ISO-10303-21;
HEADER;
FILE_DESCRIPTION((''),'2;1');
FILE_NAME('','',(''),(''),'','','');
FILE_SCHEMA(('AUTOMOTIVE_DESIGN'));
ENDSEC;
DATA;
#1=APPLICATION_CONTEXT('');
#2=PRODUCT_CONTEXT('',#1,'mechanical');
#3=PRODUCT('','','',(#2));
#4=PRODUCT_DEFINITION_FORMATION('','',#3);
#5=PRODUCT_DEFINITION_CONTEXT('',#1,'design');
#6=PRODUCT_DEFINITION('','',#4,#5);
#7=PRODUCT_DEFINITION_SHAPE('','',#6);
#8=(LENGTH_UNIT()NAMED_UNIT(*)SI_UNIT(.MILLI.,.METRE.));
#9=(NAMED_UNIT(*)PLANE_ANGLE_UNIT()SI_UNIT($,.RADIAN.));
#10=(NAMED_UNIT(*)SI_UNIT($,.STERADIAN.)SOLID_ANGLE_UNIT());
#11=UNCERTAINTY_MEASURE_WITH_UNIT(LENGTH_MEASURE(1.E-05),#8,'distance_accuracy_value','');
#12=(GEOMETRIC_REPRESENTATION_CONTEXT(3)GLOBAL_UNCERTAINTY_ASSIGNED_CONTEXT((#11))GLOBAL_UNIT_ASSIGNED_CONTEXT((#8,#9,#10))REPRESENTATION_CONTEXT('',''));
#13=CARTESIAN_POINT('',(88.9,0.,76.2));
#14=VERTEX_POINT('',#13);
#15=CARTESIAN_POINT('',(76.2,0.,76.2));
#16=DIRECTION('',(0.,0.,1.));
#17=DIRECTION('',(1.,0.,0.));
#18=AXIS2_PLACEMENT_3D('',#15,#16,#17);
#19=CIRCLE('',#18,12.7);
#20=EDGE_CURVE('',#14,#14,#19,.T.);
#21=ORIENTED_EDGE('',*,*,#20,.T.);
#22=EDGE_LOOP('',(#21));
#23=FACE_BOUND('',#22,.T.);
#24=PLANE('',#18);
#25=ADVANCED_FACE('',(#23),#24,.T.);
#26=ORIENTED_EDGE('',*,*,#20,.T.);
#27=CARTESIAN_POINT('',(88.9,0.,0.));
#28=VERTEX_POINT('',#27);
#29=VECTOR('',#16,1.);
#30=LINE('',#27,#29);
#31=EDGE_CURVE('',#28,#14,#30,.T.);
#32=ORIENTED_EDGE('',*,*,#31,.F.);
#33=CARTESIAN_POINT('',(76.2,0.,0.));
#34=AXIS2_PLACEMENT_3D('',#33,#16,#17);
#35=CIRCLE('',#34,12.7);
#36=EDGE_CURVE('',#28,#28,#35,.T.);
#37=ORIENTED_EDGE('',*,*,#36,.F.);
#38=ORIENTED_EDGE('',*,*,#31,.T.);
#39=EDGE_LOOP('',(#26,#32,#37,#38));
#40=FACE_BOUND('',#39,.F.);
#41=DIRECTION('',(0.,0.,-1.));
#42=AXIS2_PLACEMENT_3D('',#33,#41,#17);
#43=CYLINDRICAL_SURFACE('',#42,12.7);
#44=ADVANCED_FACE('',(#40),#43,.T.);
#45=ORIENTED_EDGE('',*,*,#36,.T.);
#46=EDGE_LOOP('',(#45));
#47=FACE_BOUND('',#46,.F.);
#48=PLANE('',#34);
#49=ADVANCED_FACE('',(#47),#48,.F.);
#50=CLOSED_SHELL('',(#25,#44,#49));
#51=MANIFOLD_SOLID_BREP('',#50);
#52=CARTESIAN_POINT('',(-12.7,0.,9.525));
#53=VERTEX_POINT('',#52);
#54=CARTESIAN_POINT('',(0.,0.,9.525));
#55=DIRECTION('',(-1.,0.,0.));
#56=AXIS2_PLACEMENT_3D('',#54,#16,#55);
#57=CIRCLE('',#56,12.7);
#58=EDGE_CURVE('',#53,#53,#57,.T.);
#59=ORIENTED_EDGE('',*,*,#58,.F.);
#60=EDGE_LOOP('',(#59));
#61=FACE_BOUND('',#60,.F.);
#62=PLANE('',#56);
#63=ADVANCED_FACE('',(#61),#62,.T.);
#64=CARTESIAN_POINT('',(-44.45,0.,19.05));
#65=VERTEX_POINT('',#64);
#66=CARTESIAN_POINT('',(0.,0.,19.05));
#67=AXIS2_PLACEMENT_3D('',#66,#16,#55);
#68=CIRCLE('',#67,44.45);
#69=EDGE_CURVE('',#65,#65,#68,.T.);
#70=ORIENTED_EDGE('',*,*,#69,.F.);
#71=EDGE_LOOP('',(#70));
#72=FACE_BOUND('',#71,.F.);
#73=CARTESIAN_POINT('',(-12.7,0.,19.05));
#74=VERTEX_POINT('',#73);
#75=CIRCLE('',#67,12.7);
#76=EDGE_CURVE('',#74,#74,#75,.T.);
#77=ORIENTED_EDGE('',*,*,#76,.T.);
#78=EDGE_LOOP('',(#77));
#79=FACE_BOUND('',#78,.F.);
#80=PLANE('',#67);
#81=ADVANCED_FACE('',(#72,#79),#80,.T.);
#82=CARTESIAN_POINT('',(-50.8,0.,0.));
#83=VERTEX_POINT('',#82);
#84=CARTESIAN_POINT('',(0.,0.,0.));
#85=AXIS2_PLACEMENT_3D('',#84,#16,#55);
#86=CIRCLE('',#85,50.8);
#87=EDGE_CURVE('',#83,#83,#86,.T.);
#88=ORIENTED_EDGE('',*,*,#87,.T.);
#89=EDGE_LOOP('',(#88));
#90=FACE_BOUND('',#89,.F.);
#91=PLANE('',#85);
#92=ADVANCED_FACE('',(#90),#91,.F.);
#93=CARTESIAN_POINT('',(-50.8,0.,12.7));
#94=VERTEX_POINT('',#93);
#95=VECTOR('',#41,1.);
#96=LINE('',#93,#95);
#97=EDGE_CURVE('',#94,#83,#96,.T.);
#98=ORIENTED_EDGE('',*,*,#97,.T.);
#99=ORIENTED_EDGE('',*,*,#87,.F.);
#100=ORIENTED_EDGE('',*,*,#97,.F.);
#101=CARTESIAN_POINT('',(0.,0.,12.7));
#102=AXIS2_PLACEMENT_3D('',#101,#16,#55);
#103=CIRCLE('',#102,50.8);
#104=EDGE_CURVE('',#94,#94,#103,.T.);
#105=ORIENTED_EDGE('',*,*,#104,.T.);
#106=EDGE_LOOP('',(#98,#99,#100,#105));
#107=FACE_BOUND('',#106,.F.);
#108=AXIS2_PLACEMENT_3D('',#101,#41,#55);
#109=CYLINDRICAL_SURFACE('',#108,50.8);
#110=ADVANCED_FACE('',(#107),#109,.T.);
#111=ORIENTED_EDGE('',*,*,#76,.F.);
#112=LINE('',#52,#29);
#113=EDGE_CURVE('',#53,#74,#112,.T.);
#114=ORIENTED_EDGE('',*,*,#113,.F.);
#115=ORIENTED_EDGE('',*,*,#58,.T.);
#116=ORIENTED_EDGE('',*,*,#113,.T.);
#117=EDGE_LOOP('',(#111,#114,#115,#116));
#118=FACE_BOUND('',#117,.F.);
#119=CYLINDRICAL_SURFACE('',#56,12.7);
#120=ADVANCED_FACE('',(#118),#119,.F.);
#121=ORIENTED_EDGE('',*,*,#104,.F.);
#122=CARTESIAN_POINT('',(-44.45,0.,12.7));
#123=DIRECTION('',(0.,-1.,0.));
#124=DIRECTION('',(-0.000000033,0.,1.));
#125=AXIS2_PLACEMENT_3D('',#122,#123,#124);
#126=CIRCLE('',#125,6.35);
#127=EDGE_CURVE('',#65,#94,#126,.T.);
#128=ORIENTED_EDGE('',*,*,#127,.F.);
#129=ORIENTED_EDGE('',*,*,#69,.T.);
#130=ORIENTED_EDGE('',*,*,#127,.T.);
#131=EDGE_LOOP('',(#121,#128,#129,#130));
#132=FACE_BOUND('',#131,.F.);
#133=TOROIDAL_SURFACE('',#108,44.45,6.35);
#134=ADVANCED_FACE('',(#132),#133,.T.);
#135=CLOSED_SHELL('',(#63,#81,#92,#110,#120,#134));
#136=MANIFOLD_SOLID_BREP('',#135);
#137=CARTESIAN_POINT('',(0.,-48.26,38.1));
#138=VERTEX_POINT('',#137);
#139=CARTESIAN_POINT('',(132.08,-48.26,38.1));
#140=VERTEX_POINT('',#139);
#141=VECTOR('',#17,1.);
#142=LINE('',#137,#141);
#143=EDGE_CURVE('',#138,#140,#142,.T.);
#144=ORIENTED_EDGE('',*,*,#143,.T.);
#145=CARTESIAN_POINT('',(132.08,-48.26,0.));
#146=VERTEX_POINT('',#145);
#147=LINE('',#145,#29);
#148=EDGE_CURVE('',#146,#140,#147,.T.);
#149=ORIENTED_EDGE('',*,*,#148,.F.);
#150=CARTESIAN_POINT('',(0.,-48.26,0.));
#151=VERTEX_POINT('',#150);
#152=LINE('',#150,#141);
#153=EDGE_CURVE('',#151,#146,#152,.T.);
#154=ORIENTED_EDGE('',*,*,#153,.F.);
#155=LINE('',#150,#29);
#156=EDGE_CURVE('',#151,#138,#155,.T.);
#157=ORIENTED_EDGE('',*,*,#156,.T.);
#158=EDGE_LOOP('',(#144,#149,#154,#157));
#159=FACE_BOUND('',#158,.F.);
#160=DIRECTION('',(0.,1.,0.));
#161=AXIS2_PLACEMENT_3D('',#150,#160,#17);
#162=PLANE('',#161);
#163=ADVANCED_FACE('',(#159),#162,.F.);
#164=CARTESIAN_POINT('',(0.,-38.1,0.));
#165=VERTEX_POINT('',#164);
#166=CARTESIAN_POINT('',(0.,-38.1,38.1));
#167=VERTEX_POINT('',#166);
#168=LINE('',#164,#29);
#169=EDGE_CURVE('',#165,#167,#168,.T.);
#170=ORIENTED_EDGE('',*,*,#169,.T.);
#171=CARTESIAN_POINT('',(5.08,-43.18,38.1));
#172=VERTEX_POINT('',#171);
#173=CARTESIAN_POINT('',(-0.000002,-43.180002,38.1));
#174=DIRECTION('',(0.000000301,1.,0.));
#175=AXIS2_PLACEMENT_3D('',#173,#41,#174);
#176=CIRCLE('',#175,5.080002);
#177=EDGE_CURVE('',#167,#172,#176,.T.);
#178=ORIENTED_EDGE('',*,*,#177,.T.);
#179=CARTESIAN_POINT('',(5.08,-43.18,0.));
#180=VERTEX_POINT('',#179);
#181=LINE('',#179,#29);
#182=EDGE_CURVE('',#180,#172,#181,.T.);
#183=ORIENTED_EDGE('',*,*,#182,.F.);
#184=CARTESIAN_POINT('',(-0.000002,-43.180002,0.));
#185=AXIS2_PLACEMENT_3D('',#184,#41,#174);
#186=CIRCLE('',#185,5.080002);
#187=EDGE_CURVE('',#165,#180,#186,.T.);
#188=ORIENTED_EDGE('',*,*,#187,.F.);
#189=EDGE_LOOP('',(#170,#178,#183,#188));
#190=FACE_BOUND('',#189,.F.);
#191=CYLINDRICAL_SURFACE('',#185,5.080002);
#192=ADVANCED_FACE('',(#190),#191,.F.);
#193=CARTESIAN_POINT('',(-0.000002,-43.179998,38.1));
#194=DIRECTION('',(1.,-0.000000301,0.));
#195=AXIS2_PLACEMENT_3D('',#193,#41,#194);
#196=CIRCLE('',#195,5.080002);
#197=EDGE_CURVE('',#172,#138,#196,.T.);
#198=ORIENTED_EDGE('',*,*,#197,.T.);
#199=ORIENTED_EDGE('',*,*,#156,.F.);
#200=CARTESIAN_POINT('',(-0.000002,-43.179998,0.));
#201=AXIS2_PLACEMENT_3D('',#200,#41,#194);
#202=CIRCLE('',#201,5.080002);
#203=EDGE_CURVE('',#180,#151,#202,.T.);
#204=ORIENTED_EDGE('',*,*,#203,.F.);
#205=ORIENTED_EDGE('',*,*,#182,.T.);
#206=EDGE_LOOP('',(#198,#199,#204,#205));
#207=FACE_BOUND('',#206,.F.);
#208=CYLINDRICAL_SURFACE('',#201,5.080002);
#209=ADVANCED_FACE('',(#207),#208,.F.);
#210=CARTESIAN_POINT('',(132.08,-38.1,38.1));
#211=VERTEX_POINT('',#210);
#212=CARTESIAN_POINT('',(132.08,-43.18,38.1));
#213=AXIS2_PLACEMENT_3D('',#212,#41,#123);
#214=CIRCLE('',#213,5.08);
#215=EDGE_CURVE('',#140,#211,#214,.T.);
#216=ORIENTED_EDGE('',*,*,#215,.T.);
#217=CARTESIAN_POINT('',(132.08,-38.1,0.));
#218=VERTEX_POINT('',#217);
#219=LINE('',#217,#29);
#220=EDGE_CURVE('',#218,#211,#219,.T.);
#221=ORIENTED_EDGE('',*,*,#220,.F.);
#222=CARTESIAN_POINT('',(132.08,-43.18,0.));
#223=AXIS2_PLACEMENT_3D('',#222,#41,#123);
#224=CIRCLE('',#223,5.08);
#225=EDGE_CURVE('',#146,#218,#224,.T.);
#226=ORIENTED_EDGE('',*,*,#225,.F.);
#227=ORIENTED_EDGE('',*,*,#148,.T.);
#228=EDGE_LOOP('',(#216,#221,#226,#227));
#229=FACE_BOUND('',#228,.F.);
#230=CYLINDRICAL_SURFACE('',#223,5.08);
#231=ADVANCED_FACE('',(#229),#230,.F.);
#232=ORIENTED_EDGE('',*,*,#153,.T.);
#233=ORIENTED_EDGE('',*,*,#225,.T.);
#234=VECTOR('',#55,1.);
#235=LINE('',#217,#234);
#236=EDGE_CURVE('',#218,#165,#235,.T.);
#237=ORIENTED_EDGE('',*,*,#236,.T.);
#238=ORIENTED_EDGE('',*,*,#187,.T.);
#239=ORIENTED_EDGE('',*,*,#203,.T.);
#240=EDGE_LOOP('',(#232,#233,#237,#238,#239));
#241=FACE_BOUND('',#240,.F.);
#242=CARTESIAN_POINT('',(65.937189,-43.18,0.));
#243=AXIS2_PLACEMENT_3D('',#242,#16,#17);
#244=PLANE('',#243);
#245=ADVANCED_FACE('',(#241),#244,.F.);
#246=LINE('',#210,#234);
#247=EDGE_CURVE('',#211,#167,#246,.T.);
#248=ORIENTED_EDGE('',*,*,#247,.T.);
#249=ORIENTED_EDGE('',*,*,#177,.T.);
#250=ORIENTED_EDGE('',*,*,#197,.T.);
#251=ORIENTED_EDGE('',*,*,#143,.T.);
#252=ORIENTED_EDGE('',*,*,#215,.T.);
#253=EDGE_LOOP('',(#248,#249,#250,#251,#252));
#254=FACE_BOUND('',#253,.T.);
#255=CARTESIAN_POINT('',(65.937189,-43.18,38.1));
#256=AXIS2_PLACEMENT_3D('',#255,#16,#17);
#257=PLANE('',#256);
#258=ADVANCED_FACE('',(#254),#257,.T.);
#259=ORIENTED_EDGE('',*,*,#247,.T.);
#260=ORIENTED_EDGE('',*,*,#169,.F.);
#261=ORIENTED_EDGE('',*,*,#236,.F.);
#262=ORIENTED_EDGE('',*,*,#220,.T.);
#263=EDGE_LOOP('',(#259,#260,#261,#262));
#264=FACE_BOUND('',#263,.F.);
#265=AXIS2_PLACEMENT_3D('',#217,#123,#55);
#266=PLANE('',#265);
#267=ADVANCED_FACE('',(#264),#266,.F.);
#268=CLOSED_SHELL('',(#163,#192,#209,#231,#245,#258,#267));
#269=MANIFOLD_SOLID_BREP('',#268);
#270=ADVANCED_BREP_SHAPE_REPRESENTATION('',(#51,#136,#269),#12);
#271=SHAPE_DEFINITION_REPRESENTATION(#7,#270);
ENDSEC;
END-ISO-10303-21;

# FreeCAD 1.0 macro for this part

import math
import FreeCAD as App
import Part
import Sketcher
from FreeCAD import Vector
Q = App.Units.Quantity

doc = App.newDocument("Part")
body = doc.addObject("PartDesign::Body", "Body")

sketch1 = body.newObject("Sketcher::SketchObject", "Sketch")
sketch1.AttachmentSupport = (doc.getObject("XY_Plane"), [""])
sketch1.MapMode = "FlatFace"
sketch1.addGeometry(Part.Circle(Vector(0, 0, 0), Vector(0, 0, 1), 13), False)
sketch1.addConstraint([
    Sketcher.Constraint("Coincident", 0, 3, -1, 1),
    Sketcher.Constraint("Diameter", 0, Q("1 in")),
])
pad1 = body.newObject("PartDesign::Pad", "Pad")
pad1.Profile = sketch1
pad1.Length = Q("3 in")
body2 = doc.addObject("PartDesign::Body", "Body001")
doc.recompute()

body.Placement = App.Placement(Vector(76.2, 0, 0), App.Rotation(Vector(0, 0, 1), 0))
boolean = body2.newObject("PartDesign::Boolean", "Boolean")
boolean.Type = "Fuse"
boolean.addObjects([body])
body3 = doc.addObject("PartDesign::Body", "Body002")

sketch2 = body3.newObject("Sketcher::SketchObject", "Sketch001")
sketch2.AttachmentSupport = (doc.getObject("XZ_Plane002"), [""])
sketch2.MapMode = "FlatFace"
sketch2.addGeometry([
    Part.LineSegment(Vector(-51, 0, 0), Vector(0, 0, 0)),
    Part.LineSegment(Vector(0, 0, 0), Vector(0, 10, 0)),
    Part.LineSegment(Vector(0, 10, 0), Vector(-13, 10, 0)),
    Part.LineSegment(Vector(-13, 10, 0), Vector(-13, 19, 0)),
    Part.LineSegment(Vector(-13, 19, 0), Vector(-44, 19, 0)),
    Part.ArcOfCircle(Part.Circle(Vector(-44, 13, 0), Vector(0, 0, 1), 6), math.radians(90), math.radians(180)),
    Part.LineSegment(Vector(-51, 13, 0), Vector(-51, 0, 0)),
], False)
sketch2.addConstraint([
    Sketcher.Constraint("Coincident", 0, 2, 1, 1),
    Sketcher.Constraint("Coincident", 1, 2, 2, 1),
    Sketcher.Constraint("Coincident", 2, 2, 3, 1),
    Sketcher.Constraint("Coincident", 3, 2, 4, 1),
    Sketcher.Constraint("Tangent", 4, 2, 5, 1),
    Sketcher.Constraint("Tangent", 5, 2, 6, 1),
    Sketcher.Constraint("Coincident", 6, 2, 0, 1),
    Sketcher.Constraint("Horizontal", 0),
    Sketcher.Constraint("Vertical", 1),
    Sketcher.Constraint("Horizontal", 2),
    Sketcher.Constraint("Vertical", 3),
    Sketcher.Constraint("Horizontal", 4),
    Sketcher.Constraint("Vertical", 6),
    Sketcher.Constraint("Coincident", 0, 2, -1, 1),
    Sketcher.Constraint("Equal", 1, 3),
    Sketcher.Constraint("Equal", 2, 6),
    Sketcher.Constraint("DistanceX", 0, 1, 0, 2, Q("2 in")),
    Sketcher.Constraint("Radius", 5, Q("0.25 in")),
    Sketcher.Constraint("DistanceX", 2, 2, 2, 1, Q("0.5 in")),
])
revolution = body3.newObject("PartDesign::Revolution", "Revolution")
revolution.Profile = sketch2
revolution.ReferenceAxis = (sketch2, ["V_Axis"])
revolution.Angle = 360
body4 = doc.addObject("PartDesign::Body", "Body003")

sketch3 = body4.newObject("Sketcher::SketchObject", "Sketch002")
sketch3.AttachmentSupport = (doc.getObject("XY_Plane003"), [""])
sketch3.MapMode = "FlatFace"
sketch3.addGeometry([
    Part.ArcOfCircle(Part.Circle(Vector(0, -43, 0), Vector(0, 0, 1), 5), math.radians(-90), math.radians(0)),
    Part.LineSegment(Vector(0, -48, 0), Vector(132, -48, 0)),
    Part.ArcOfCircle(Part.Circle(Vector(132, -43, 0), Vector(0, 0, 1), 5), math.radians(90), math.radians(270)),
    Part.LineSegment(Vector(132, -38, 0), Vector(0, -38, 0)),
    Part.ArcOfCircle(Part.Circle(Vector(0, -43, 0), Vector(0, 0, 1), 5), math.radians(0), math.radians(90)),
], False)
sketch3.addConstraint([
    Sketcher.Constraint("Tangent", 0, 1, 1, 1),
    Sketcher.Constraint("Tangent", 1, 2, 2, 2),
    Sketcher.Constraint("Tangent", 2, 1, 3, 1),
    Sketcher.Constraint("Tangent", 3, 2, 4, 2),
    Sketcher.Constraint("Tangent", 4, 1, 0, 2),
    Sketcher.Constraint("Horizontal", 1),
    Sketcher.Constraint("Horizontal", 3),
    Sketcher.Constraint("Equal", 0, 2),
    Sketcher.Constraint("PointOnObject", 0, 3, -2),
    Sketcher.Constraint("Horizontal", 2, 3, 4, 1),
    Sketcher.Constraint("Radius", 0, Q("0.2000001 in")),
    Sketcher.Constraint("DistanceX", 1, 1, 1, 2, Q("5.2 in")),
    Sketcher.Constraint("DistanceY", 0, 3, -1, 1, Q("1.6999999 in")),
])
pad2 = body4.newObject("PartDesign::Pad", "Pad001")
pad2.Profile = sketch3
pad2.Length = Q("1.5 in")

doc.recompute()
